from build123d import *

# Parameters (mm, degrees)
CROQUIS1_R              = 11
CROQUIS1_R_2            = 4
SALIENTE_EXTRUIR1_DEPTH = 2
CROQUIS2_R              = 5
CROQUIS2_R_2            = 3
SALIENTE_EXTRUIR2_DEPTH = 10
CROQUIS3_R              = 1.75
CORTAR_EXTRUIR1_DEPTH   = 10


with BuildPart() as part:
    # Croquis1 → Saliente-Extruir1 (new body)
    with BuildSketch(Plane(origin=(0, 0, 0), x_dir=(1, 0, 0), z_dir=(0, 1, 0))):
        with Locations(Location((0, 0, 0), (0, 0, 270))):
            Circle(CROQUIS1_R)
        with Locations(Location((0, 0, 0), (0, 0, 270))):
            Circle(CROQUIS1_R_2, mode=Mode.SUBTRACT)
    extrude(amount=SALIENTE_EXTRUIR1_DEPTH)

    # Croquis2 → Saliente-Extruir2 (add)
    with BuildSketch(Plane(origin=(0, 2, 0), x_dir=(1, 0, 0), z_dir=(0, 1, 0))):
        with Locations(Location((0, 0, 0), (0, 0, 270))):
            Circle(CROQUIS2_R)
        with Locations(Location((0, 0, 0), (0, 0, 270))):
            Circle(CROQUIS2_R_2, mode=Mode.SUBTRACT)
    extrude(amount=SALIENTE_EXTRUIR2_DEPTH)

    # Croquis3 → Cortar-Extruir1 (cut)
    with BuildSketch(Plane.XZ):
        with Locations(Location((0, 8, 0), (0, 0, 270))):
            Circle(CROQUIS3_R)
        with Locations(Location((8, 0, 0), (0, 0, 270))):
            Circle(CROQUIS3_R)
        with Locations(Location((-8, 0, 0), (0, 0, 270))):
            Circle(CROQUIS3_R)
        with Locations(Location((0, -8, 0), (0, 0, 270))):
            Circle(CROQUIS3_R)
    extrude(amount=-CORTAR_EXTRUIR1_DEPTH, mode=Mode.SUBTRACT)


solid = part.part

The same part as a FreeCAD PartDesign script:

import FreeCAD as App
import Part
import Sketcher
from FreeCAD import Vector
Q = App.Units.Quantity

doc = App.newDocument("Part")
params = doc.addObject("Spreadsheet::Sheet", "Params")
for row, (alias, value) in enumerate([
    ("sketch1_diameter", "22 mm"),
    ("sketch1_diameter2", "8 mm"),
    ("pad1_length", "2 mm"),
    ("sketch2_diameter", "10 mm"),
    ("sketch2_diameter2", "6 mm"),
    ("pad2_length", "10 mm"),
    ("sketch3_diameter", "3.5 mm"),
    ("pocket1_length", "10 mm"),
], start=1):
    params.set(f"A{row}", alias)
    params.set(f"B{row}", "=" + value)
    params.setAlias(f"B{row}", alias)

body = doc.addObject("PartDesign::Body", "Body")

# Sketch on XZ plane
sketch1 = body.newObject("Sketcher::SketchObject", "Sketch")
sketch1.AttachmentSupport = (doc.getObject("XZ_Plane"), [""])
sketch1.MapMode = "FlatFace"
sketch1.addGeometry(Part.Circle(Vector(0, 0, 0), Vector(0, 0, 1), 11), False)
sketch1.addGeometry(Part.Circle(Vector(0, 0, 0), Vector(0, 0, 1), 4), False)
sketch1.addConstraint(Sketcher.Constraint("Coincident", 0, 3, -1, 1))
sketch1.addConstraint(Sketcher.Constraint("Coincident", 1, 3, -1, 1))
sketch1.addConstraint(Sketcher.Constraint("Diameter", 0, Q("22 mm")))
sketch1.addConstraint(Sketcher.Constraint("Diameter", 1, Q("8 mm")))
sketch1.setExpression("Constraints[2]", "Params.sketch1_diameter")
sketch1.setExpression("Constraints[3]", "Params.sketch1_diameter2")
pad1 = body.newObject("PartDesign::Pad", "Pad")
pad1.Profile = sketch1
pad1.setExpression("Length", "Params.pad1_length")
pad1.Reversed = True

# Sketch on XZ plane
sketch2 = body.newObject("Sketcher::SketchObject", "Sketch001")
sketch2.AttachmentSupport = (doc.getObject("XZ_Plane"), [""])
sketch2.MapMode = "FlatFace"
sketch2.AttachmentOffset = App.Placement(Vector(0, 0, -2), App.Rotation())
sketch2.addGeometry(Part.Circle(Vector(0, 0, 0), Vector(0, 0, 1), 5), False)
sketch2.addGeometry(Part.Circle(Vector(0, 0, 0), Vector(0, 0, 1), 3), False)
sketch2.addConstraint(Sketcher.Constraint("Coincident", 0, 3, -1, 1))
sketch2.addConstraint(Sketcher.Constraint("Coincident", 1, 3, -1, 1))
sketch2.addConstraint(Sketcher.Constraint("Diameter", 0, Q("10 mm")))
sketch2.addConstraint(Sketcher.Constraint("Diameter", 1, Q("6 mm")))
sketch2.setExpression("Constraints[2]", "Params.sketch2_diameter")
sketch2.setExpression("Constraints[3]", "Params.sketch2_diameter2")
pad2 = body.newObject("PartDesign::Pad", "Pad001")
pad2.Profile = sketch2
pad2.setExpression("Length", "Params.pad2_length")
pad2.Reversed = True

# Sketch on XZ plane
sketch3 = body.newObject("Sketcher::SketchObject", "Sketch002")
sketch3.AttachmentSupport = (doc.getObject("XZ_Plane"), [""])
sketch3.MapMode = "FlatFace"
sketch3.addGeometry(Part.Circle(Vector(0, 8, 0), Vector(0, 0, 1), 1.75), False)
sketch3.addGeometry(Part.Circle(Vector(8, 0, 0), Vector(0, 0, 1), 1.75), False)
sketch3.addGeometry(Part.Circle(Vector(-8, 0, 0), Vector(0, 0, 1), 1.75), False)
sketch3.addGeometry(Part.Circle(Vector(0, -8, 0), Vector(0, 0, 1), 1.75), False)
sketch3.addConstraint(Sketcher.Constraint("Equal", 0, 1))
sketch3.addConstraint(Sketcher.Constraint("Equal", 1, 2))
sketch3.addConstraint(Sketcher.Constraint("Equal", 2, 3))
sketch3.addConstraint(Sketcher.Constraint("Symmetric", 1, 3, 2, 3, -1, 1))
sketch3.addConstraint(Sketcher.Constraint("Symmetric", 0, 3, 3, 3, -1, 1))
sketch3.addConstraint(Sketcher.Constraint("PointOnObject", 0, 3, -2))
sketch3.addConstraint(Sketcher.Constraint("PointOnObject", 1, 3, -1))
sketch3.addConstraint(Sketcher.Constraint("Diameter", 0, Q("3.5 mm")))
sketch3.addConstraint(Sketcher.Constraint("DistanceY", -1, 1, 0, 3, Q("8 mm")))
sketch3.addConstraint(Sketcher.Constraint("DistanceX", -1, 1, 1, 3, Q("8 mm")))
sketch3.setExpression("Constraints[7]", "Params.sketch3_diameter")
pocket1 = body.newObject("PartDesign::Pocket", "Pocket")
pocket1.Profile = sketch3
pocket1.setExpression("Length", "Params.pocket1_length")

doc.recompute()
